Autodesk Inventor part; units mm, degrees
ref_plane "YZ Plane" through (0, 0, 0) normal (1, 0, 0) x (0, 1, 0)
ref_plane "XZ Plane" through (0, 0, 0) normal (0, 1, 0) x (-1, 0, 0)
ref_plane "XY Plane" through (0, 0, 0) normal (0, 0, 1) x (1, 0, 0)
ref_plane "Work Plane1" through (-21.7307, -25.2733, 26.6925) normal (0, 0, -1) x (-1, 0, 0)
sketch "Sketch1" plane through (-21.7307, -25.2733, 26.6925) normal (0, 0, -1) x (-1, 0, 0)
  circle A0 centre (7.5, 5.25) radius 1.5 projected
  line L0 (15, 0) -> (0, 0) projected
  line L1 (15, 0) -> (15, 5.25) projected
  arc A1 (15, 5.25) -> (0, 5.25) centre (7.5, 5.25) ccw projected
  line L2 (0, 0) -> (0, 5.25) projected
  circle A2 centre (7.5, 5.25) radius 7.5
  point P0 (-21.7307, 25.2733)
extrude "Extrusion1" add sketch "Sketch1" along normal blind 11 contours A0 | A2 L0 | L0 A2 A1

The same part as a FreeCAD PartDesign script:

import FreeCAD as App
import Part
import Sketcher
from FreeCAD import Vector
Q = App.Units.Quantity

doc = App.newDocument("Part")
body = doc.addObject("PartDesign::Body", "Body")

sketch1 = doc.addObject("Sketcher::SketchObject", "Sketch")
body.addObject(sketch1)
sketch1.AttachmentSupport = (doc.XY_Plane, [""])
sketch1.MapMode = "FlatFace"
sketch1.AttachmentOffset = App.Placement(Vector(0, 0, 26.6925), App.Rotation())
sketch1.addGeometry(Part.Circle(Vector(-29, -20, 0), Vector(0, 0, 1), 8), False)
sketch1.addConstraint([
    Sketcher.Constraint("Diameter", 0, Q("15 mm")),
    Sketcher.Constraint("DistanceX", 0, 3, -1, 1, Q("29.2307 mm")),
    Sketcher.Constraint("DistanceY", 0, 3, -1, 1, Q("20.0233 mm")),
])
pad1 = doc.addObject("PartDesign::Pad", "Pad")
body.addObject(pad1)
pad1.Profile = sketch1
pad1.Length = 11
pad1.Reversed = True

doc.recompute()
